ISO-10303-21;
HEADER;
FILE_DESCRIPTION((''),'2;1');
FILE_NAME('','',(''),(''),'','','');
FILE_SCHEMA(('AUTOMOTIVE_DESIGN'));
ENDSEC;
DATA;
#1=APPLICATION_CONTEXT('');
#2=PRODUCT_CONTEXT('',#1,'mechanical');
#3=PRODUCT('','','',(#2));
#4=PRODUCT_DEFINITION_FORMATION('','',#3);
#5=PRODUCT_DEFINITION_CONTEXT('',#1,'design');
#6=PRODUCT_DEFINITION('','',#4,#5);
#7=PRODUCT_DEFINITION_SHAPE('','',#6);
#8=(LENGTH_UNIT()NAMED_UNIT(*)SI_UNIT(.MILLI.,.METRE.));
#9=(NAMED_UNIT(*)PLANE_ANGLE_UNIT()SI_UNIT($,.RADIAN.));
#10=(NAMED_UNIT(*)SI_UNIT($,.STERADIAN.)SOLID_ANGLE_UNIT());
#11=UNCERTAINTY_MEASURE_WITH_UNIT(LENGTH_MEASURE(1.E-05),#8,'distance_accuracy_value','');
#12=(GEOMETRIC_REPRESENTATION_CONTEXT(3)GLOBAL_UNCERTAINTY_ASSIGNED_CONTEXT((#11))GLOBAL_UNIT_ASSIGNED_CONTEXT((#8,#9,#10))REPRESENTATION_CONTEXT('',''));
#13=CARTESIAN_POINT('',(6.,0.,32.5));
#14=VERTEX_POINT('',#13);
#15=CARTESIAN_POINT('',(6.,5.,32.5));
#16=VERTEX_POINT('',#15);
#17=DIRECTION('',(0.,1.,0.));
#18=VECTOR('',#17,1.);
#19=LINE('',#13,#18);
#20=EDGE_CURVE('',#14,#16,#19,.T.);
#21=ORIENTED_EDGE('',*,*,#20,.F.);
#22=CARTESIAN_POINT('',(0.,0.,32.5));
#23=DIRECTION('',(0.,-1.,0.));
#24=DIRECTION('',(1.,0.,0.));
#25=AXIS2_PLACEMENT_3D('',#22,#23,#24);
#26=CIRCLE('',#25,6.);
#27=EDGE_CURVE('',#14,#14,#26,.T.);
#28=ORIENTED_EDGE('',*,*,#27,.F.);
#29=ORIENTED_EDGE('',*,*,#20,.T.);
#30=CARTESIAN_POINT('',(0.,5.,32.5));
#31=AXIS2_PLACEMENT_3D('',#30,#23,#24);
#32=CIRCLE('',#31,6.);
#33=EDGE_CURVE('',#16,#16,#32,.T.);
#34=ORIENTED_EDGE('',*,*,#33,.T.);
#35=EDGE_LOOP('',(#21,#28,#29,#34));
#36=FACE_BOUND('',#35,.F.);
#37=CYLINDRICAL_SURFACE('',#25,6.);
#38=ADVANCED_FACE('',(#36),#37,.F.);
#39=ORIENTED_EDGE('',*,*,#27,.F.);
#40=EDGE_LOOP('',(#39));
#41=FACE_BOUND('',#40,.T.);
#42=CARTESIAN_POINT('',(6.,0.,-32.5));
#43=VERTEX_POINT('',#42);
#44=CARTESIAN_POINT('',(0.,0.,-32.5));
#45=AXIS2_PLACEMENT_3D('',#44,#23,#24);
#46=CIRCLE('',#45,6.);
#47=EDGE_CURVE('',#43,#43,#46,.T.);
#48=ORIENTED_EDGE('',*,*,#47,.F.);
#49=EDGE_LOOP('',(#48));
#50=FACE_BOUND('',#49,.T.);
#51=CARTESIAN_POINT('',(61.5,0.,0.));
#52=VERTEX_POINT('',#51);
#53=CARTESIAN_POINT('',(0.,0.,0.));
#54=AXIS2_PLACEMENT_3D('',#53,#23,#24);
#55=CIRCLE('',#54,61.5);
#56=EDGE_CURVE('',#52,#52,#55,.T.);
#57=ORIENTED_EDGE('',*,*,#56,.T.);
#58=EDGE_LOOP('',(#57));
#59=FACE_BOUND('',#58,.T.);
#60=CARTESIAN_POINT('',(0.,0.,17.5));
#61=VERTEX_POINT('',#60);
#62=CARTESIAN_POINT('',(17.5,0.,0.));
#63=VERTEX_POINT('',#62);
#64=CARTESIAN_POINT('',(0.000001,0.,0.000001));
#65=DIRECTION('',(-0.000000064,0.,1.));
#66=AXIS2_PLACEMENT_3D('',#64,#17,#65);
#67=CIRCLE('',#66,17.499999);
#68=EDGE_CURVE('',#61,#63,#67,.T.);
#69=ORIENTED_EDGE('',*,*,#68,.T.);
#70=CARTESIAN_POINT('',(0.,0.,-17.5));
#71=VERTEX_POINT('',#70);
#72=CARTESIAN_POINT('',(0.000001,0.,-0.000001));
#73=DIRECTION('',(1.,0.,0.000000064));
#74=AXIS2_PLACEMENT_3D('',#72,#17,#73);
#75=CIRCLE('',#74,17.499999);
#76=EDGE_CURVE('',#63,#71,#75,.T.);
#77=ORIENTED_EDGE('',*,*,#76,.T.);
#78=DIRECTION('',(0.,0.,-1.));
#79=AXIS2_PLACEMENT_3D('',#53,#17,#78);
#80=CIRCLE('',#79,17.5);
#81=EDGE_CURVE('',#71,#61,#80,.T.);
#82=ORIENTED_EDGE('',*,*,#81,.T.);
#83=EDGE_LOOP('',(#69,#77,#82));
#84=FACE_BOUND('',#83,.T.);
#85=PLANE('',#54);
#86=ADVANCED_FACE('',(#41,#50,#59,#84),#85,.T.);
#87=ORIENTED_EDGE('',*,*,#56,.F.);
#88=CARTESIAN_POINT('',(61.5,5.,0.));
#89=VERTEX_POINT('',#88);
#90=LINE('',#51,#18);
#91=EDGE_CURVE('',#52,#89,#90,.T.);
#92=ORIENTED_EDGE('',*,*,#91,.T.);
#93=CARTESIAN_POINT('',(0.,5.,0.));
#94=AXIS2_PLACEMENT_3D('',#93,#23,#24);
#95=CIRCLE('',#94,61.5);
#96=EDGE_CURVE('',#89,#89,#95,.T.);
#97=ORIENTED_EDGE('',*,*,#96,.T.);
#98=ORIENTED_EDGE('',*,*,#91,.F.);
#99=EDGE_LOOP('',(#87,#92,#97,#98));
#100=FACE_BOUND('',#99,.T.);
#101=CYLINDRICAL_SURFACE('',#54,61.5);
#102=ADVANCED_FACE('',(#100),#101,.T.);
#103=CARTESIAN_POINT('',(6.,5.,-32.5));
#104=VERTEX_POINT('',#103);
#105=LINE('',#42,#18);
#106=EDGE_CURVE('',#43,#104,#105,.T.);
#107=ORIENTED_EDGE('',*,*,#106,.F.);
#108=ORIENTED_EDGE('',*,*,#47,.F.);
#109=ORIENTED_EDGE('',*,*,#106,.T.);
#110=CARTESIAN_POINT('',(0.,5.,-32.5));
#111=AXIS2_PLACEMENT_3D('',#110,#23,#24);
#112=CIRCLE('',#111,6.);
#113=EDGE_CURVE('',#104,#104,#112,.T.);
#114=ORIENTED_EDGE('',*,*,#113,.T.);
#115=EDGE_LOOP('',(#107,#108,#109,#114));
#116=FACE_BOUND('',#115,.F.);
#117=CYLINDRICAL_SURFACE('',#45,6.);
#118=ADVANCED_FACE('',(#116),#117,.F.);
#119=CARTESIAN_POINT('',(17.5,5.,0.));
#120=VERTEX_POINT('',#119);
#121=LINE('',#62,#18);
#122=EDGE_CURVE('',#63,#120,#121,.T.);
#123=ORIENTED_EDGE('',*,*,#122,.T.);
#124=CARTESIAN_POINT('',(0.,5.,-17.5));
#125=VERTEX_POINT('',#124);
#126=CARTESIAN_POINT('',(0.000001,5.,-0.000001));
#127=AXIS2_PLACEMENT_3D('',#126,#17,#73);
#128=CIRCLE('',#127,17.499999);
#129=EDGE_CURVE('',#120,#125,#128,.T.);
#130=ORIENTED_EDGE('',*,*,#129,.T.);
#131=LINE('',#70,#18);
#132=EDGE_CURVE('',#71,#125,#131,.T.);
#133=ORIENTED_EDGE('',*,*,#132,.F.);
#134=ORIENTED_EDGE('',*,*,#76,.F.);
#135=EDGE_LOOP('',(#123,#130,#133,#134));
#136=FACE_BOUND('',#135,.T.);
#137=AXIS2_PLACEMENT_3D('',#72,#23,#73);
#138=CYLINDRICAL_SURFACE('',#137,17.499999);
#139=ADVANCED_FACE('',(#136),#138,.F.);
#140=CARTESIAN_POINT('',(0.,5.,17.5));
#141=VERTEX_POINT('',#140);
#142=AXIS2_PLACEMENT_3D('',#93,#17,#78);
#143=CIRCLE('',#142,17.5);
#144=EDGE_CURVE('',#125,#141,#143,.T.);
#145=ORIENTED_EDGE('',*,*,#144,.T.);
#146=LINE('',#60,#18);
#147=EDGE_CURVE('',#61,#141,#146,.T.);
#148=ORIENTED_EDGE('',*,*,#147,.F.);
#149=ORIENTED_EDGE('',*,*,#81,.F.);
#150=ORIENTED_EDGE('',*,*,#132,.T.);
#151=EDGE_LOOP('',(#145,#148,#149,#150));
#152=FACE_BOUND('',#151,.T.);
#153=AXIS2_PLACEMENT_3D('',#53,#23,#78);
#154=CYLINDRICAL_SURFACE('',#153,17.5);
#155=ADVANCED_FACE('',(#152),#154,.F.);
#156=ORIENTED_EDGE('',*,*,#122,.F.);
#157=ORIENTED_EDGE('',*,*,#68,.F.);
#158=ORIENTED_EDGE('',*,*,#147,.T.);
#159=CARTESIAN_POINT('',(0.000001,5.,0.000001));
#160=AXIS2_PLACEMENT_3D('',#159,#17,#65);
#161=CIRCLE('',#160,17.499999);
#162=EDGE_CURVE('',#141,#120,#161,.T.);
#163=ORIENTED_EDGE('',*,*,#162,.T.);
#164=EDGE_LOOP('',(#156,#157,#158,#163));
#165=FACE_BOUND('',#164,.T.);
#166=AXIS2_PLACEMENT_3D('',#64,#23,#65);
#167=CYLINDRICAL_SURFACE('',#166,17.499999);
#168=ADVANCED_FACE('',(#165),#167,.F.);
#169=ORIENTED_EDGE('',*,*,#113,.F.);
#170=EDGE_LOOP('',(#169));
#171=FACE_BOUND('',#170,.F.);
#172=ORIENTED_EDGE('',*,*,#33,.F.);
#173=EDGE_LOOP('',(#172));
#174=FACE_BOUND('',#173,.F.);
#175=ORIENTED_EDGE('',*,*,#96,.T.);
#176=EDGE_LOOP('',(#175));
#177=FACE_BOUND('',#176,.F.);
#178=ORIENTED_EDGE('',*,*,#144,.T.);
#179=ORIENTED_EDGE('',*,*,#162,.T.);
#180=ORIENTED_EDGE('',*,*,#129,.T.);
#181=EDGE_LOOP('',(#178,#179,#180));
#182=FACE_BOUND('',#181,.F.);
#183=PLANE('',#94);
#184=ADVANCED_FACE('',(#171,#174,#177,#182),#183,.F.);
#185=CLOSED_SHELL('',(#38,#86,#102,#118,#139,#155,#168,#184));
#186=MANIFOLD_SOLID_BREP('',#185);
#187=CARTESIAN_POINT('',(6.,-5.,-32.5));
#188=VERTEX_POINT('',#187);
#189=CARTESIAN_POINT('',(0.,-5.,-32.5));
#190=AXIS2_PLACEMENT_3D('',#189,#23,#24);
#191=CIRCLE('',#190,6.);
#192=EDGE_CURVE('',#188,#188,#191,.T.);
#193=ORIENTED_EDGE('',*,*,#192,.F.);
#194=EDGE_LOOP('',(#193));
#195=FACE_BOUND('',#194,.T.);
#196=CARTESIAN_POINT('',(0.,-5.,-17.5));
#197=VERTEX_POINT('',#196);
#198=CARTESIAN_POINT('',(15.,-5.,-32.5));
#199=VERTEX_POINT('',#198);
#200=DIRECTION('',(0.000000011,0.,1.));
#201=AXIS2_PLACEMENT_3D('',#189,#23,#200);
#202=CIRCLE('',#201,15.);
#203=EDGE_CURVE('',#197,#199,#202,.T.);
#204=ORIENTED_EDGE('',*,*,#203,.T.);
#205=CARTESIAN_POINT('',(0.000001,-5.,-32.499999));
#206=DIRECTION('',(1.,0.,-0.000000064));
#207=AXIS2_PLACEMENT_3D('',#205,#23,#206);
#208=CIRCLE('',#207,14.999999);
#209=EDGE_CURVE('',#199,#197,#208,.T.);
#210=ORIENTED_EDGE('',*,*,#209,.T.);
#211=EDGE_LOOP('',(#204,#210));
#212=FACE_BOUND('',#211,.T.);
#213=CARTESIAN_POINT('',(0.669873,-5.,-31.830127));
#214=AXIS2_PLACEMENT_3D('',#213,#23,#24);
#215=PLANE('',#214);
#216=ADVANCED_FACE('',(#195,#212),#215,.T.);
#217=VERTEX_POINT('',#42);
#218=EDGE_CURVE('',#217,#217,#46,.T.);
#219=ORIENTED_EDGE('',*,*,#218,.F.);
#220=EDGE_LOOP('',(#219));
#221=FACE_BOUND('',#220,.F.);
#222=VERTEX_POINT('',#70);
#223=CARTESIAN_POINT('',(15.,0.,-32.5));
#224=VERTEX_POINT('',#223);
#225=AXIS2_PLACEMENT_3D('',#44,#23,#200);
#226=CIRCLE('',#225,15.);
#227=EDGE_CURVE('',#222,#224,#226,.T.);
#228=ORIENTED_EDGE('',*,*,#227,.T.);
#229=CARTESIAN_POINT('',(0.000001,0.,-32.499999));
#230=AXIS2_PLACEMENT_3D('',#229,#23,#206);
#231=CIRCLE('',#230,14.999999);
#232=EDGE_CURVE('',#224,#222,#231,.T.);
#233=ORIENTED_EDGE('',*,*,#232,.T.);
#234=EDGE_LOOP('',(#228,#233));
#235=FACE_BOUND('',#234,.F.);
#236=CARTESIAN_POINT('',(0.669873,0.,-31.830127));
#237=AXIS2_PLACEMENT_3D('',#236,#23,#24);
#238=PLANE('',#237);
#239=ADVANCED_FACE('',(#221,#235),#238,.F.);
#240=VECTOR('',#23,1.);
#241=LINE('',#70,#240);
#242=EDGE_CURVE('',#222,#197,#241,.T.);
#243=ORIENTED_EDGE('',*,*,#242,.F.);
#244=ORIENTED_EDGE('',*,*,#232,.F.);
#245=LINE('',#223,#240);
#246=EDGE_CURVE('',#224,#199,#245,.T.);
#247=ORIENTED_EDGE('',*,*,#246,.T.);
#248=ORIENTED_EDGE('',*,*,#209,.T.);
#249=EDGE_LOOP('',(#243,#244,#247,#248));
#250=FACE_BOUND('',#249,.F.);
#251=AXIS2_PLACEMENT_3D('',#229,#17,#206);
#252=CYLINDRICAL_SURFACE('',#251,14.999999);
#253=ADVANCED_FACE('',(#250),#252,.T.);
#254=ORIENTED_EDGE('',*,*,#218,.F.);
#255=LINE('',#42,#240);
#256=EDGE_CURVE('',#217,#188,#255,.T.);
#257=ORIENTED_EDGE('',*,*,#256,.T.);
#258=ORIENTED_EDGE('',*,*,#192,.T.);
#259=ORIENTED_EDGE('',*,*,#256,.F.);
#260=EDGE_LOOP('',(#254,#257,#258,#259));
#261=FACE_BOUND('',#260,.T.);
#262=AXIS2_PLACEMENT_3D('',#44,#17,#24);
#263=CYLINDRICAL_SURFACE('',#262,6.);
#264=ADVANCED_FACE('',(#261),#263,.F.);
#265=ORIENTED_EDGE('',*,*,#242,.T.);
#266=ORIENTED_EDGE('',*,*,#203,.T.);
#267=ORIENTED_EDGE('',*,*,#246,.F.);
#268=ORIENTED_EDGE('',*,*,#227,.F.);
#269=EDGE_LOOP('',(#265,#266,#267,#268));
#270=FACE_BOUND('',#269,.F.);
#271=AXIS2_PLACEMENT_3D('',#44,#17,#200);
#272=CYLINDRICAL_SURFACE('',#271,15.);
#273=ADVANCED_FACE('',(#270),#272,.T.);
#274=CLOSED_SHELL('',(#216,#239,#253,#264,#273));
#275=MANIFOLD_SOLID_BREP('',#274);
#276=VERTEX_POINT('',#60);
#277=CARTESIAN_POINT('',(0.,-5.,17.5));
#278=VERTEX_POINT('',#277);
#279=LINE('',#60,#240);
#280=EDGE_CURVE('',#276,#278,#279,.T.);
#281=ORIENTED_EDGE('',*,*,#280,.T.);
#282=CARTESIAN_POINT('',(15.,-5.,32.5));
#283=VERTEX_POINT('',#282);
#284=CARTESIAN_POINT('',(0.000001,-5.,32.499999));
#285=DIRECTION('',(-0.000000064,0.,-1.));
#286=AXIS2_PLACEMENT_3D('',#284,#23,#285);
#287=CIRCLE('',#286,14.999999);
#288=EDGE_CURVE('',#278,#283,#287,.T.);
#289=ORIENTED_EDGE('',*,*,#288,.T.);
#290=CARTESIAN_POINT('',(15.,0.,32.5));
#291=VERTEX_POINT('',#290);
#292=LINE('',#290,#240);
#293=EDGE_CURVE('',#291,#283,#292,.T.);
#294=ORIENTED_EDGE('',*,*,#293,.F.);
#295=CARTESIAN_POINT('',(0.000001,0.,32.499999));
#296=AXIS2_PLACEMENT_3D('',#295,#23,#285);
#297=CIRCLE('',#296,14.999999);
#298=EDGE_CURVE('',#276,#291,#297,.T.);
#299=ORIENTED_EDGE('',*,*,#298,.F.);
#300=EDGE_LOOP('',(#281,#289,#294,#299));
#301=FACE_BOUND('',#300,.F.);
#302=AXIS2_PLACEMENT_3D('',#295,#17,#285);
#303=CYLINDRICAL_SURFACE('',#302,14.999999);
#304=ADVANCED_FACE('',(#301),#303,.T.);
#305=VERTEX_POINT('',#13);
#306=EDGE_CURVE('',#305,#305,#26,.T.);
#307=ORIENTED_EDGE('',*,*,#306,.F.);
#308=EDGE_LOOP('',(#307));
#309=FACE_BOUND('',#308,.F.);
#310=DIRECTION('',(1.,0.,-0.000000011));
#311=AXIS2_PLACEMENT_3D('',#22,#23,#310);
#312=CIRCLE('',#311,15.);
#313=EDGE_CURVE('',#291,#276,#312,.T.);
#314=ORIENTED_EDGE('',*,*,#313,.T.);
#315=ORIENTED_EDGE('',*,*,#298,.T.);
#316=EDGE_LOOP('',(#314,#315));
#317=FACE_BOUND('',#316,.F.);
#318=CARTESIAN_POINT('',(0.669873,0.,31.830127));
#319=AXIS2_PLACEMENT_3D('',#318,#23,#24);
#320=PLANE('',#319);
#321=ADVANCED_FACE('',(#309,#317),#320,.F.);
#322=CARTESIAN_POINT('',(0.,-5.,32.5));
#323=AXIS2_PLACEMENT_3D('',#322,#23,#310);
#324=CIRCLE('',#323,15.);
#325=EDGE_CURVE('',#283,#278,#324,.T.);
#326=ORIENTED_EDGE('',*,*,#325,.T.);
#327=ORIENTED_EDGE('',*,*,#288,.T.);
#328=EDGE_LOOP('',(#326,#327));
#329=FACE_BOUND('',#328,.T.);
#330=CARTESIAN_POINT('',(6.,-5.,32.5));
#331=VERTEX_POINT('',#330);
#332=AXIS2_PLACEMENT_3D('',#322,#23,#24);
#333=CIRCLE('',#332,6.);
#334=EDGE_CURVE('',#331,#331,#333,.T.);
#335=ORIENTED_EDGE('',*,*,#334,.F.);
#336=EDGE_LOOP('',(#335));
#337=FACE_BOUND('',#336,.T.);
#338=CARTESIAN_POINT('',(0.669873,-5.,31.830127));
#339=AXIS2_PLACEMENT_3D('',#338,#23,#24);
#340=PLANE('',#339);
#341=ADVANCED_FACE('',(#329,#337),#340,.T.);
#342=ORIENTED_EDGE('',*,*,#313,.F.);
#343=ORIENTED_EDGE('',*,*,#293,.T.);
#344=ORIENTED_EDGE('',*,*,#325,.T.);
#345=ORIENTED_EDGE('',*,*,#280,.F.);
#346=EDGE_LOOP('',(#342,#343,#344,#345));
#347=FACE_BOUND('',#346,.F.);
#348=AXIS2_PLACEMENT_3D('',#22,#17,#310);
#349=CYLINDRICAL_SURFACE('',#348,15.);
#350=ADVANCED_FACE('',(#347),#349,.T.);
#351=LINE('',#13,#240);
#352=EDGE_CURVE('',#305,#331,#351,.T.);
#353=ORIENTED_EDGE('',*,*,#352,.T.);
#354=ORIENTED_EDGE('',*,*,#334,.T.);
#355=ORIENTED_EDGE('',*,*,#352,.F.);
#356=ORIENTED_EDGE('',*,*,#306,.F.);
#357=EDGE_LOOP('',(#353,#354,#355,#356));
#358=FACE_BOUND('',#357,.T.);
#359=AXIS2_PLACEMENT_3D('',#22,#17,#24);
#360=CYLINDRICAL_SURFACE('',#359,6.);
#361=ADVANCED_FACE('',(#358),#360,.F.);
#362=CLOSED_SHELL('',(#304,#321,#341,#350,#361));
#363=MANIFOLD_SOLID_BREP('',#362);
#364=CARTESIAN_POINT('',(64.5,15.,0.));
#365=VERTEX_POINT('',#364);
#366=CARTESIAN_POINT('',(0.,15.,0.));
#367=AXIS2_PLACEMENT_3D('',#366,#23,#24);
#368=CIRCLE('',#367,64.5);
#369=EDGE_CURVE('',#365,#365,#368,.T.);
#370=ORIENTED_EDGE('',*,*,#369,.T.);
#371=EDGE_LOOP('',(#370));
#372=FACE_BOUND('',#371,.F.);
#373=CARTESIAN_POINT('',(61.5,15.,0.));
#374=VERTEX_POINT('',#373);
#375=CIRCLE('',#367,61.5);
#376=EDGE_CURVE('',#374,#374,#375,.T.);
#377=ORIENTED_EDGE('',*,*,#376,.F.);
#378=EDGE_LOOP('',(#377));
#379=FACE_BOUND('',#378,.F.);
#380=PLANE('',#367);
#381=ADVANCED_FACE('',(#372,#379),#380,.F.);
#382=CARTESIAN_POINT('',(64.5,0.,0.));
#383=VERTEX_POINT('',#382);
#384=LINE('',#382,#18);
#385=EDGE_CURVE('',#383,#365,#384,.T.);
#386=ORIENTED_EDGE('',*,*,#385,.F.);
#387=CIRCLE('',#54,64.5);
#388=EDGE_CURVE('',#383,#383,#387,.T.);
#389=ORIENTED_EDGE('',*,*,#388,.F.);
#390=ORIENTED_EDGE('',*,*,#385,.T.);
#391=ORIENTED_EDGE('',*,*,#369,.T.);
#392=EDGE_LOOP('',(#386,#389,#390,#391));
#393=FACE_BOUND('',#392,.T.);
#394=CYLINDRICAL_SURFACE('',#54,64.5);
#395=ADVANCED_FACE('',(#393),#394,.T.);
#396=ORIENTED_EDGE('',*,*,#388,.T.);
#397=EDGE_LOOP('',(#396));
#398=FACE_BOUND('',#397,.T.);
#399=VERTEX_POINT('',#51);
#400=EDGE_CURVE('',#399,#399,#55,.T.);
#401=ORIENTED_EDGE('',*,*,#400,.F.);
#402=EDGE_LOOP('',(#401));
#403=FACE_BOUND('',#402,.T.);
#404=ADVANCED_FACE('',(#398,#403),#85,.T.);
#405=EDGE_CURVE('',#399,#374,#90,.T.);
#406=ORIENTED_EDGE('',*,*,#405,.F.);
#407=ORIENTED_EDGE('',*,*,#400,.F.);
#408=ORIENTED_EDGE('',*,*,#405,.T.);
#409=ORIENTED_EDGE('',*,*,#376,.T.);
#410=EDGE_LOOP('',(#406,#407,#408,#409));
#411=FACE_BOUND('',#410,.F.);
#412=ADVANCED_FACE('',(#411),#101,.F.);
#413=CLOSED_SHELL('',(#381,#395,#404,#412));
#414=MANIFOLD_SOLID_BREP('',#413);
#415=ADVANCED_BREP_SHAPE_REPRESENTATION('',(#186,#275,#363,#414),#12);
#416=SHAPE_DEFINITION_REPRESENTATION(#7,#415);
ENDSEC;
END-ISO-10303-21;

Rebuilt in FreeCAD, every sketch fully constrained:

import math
import FreeCAD as App
import Part
import Sketcher

V = App.Vector

doc = App.newDocument("Part")
body = doc.addObject("PartDesign::Body", "Body")

# Sketch on XZ plane
sketch1 = doc.addObject("Sketcher::SketchObject", "Sketch")
body.addObject(sketch1)
sketch1.AttachmentSupport = (doc.XZ_Plane, [""])
sketch1.MapMode = "FlatFace"
sketch1.addGeometry([
    Part.Circle(V(0, 0, 0), V(0, 0, 1), 61.5),  # 0
    Part.Circle(V(0, -32.5, 0), V(0, 0, 1), 6),  # 1
    Part.Circle(V(0, 32.5, 0), V(0, 0, 1), 6),  # 2
    Part.ArcOfCircle(Part.Circle(V(0.000001, -0.000001, 0), V(0, 0, 1), 17.499999), math.radians(-90.000004), math.radians(0.000004)),  # 3
    Part.ArcOfCircle(Part.Circle(V(0, 0, 0), V(0, 0, 1), 17.5), math.radians(90), math.radians(270)),  # 4
    Part.ArcOfCircle(Part.Circle(V(0.000001, 0.000001, 0), V(0, 0, 1), 17.499999), math.radians(-0.000004), math.radians(90.000004)),  # 5
], False)
sketch1.addConstraint([
    Sketcher.Constraint("Tangent", 3, 1, 4, 2),
    Sketcher.Constraint("Tangent", 4, 1, 5, 2),
    Sketcher.Constraint("Tangent", 5, 1, 3, 2),
    Sketcher.Constraint("Coincident", 0, 3, -1, 1),
    Sketcher.Constraint("Coincident", 3, 3, -1, 1),
    Sketcher.Constraint("Equal", 1, 2),
    Sketcher.Constraint("Symmetric", 1, 3, 2, 3, -1, 1),
    Sketcher.Constraint("PointOnObject", 1, 3, -2),
    Sketcher.Constraint("PointOnObject", 3, 1, -2),
    Sketcher.Constraint("PointOnObject", 4, 1, -2),
    Sketcher.Constraint("PointOnObject", 5, 1, -1),
    Sketcher.Constraint("Diameter", 0, 123.0),
    Sketcher.Constraint("Diameter", 1, 12.0),
    Sketcher.Constraint("Radius", 3, 17.499999),
    Sketcher.Constraint("DistanceY", 1, 3, 2, 3, 65.0),
])
pad1 = doc.addObject("PartDesign::Pad", "Pad")
body.addObject(pad1)
pad1.Profile = sketch1
pad1.Length = 5
pad1.Reversed = True
body2 = doc.addObject("PartDesign::Body", "Body001")

# Sketch on XZ plane
sketch2 = doc.addObject("Sketcher::SketchObject", "Sketch001")
body2.addObject(sketch2)
sketch2.AttachmentSupport = (doc.getObject("XZ_Plane001"), [""])
sketch2.MapMode = "FlatFace"
sketch2.addGeometry([
    Part.Circle(V(0, 0, 0), V(0, 0, 1), 64.5),
    Part.Circle(V(0, 0, 0), V(0, 0, 1), 61.5),
], False)
sketch2.addConstraint([
    Sketcher.Constraint("Coincident", 0, 3, -1, 1),
    Sketcher.Constraint("Coincident", 1, 3, -1, 1),
    Sketcher.Constraint("Diameter", 0, 129.0),
    Sketcher.Constraint("Diameter", 1, 123.0),
])
pad2 = doc.addObject("PartDesign::Pad", "Pad001")
body2.addObject(pad2)
pad2.Profile = sketch2
pad2.Length = 15
pad2.Reversed = True
body3 = doc.addObject("PartDesign::Body", "Body002")
body3.AllowCompound = True

# Sketch on XZ plane
sketch3 = doc.addObject("Sketcher::SketchObject", "Sketch002")
body3.addObject(sketch3)
sketch3.AttachmentSupport = (doc.getObject("XZ_Plane002"), [""])
sketch3.MapMode = "FlatFace"
sketch3.addGeometry([
    Part.ArcOfCircle(Part.Circle(V(0, 32.5, 0), V(0, 0, 1), 15), math.radians(-0.000001), math.radians(270.000001)),  # 0
    Part.ArcOfCircle(Part.Circle(V(0.000001, 32.499999, 0), V(0, 0, 1), 14.999999), math.radians(-90.000004), math.radians(0.000004)),  # 1
    Part.Circle(V(0, 32.5, 0), V(0, 0, 1), 6),  # 2
    Part.ArcOfCircle(Part.Circle(V(0.000001, -32.499999, 0), V(0, 0, 1), 14.999999), math.radians(-0.000004), math.radians(90.000004)),  # 3
    Part.ArcOfCircle(Part.Circle(V(0, -32.5, 0), V(0, 0, 1), 15), math.radians(89.999999), math.radians(360.000001)),  # 4
    Part.Circle(V(0, -32.5, 0), V(0, 0, 1), 6),  # 5
], False)
sketch3.addConstraint([
    Sketcher.Constraint("Tangent", 0, 1, 1, 2),
    Sketcher.Constraint("Coincident", 1, 1, 0, 2),
    Sketcher.Constraint("Tangent", 3, 1, 4, 2),
    Sketcher.Constraint("Coincident", 4, 1, 3, 2),
    Sketcher.Constraint("Coincident", 2, 3, 0, 3),
    Sketcher.Constraint("Coincident", 5, 3, 3, 3),
    Sketcher.Constraint("Equal", 1, 3),
    Sketcher.Constraint("Equal", 2, 5),
    Sketcher.Constraint("Symmetric", 0, 3, 3, 3, -1, 1),
    Sketcher.Constraint("Symmetric", 0, 1, 3, 1, -1),
    Sketcher.Constraint("PointOnObject", 1, 1, -2),
    Sketcher.Constraint("PointOnObject", 4, 1, -2),
    Sketcher.Constraint("Horizontal", 2, 3, 0, 1),
    Sketcher.Constraint("Diameter", 2, 12.0),
    Sketcher.Constraint("Radius", 0, 15.0),
    Sketcher.Constraint("DistanceY", 3, 3, 1, 3, 64.999998),
])
pad3 = doc.addObject("PartDesign::Pad", "Pad002")
body3.addObject(pad3)
pad3.Profile = sketch3
pad3.Length = 5

doc.recompute()
